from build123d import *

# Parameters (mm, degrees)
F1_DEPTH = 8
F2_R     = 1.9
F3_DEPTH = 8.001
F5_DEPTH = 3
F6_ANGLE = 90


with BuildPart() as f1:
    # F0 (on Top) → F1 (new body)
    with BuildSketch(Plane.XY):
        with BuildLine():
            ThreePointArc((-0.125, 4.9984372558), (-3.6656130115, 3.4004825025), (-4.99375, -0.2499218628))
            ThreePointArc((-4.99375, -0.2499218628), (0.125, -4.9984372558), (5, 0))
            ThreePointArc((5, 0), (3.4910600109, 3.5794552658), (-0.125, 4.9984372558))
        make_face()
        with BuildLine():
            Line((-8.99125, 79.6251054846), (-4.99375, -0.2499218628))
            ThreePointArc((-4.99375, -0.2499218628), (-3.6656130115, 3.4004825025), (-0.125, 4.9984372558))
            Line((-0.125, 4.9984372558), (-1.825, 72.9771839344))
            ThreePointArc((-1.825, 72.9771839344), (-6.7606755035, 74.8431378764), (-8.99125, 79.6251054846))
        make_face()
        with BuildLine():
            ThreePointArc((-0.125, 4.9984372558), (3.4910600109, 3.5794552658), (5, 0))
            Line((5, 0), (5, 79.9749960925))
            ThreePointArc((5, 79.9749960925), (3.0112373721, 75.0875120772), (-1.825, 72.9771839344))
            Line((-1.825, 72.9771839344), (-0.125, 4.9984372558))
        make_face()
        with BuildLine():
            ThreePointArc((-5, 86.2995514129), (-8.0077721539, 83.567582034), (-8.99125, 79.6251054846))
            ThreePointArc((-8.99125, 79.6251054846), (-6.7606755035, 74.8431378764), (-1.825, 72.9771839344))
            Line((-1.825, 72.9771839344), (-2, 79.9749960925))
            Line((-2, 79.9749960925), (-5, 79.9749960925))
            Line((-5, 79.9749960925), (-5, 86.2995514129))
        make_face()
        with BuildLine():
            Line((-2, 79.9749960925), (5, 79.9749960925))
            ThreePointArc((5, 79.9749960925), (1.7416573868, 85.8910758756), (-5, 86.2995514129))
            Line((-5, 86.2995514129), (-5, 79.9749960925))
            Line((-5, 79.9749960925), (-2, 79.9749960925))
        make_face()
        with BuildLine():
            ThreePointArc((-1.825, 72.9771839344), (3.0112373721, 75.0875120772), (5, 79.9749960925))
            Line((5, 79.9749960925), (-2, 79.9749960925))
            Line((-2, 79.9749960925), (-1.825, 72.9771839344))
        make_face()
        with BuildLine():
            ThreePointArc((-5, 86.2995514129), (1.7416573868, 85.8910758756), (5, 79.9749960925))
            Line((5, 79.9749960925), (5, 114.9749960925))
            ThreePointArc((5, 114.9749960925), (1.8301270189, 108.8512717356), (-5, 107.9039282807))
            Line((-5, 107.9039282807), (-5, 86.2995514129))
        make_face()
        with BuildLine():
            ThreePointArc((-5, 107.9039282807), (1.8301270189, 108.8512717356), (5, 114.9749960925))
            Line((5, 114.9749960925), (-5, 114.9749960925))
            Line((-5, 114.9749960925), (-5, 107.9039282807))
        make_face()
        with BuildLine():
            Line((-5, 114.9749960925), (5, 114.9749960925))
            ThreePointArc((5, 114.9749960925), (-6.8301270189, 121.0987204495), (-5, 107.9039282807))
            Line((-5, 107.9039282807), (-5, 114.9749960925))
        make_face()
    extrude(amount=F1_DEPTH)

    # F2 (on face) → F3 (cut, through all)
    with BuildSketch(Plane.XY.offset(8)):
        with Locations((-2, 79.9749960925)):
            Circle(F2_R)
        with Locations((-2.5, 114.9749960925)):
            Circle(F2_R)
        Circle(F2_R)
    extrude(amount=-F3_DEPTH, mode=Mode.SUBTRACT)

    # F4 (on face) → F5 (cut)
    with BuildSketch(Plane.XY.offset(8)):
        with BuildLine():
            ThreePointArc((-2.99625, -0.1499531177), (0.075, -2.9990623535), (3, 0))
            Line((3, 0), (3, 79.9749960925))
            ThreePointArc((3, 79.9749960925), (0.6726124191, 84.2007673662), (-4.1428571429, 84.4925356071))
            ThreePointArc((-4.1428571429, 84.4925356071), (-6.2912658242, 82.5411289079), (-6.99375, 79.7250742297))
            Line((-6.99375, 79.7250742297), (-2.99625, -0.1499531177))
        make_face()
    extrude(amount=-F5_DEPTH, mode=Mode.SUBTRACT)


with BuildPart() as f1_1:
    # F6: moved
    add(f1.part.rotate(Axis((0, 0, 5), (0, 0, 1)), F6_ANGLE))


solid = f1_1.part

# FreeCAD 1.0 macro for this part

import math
import FreeCAD as App
import Part
import Sketcher

V = App.Vector

doc = App.newDocument("Part")
body = doc.addObject("PartDesign::Body", "Body")

# Sketch on XY plane
sketch1 = body.newObject("Sketcher::SketchObject", "Sketch")
sketch1.AttachmentSupport = (doc.getObject("XY_Plane"), [""])
sketch1.MapMode = "FlatFace"
sketch1.addGeometry([
    Part.LineSegment(V(5, 0, 0), V(5, 114.974996, 0)),  # 0
    Part.ArcOfCircle(Part.Circle(V(-2.5, 114.974996, 0), V(0, 0, 1), 7.5), math.radians(0), math.radians(250.528779)),  # 1
    Part.LineSegment(V(-5, 107.903928, 0), V(-5, 86.299551, 0)),  # 2
    Part.ArcOfCircle(Part.Circle(V(-2, 79.974996, 0), V(0, 0, 1), 7), math.radians(115.376934), math.radians(182.865087)),  # 3
    Part.LineSegment(V(-8.99125, 79.625105, 0), V(-4.99375, -0.249922, 0)),  # 4
    Part.ArcOfCircle(Part.Circle(V(0, 0, 0), V(0, 0, 1), 5), math.radians(-177.134913), math.radians(0)),  # 5
], False)
sketch1.addConstraint([
    Sketcher.Constraint("Tangent", 0, 2, 1, 1),
    Sketcher.Constraint("Coincident", 1, 2, 2, 1),
    Sketcher.Constraint("Coincident", 2, 2, 3, 1),
    Sketcher.Constraint("Tangent", 3, 2, 4, 1),
    Sketcher.Constraint("Tangent", 4, 2, 5, 1),
    Sketcher.Constraint("Tangent", 5, 2, 0, 1),
    Sketcher.Constraint("Vertical", 0),
    Sketcher.Constraint("Vertical", 2),
    Sketcher.Constraint("Coincident", 5, 3, -1, 1),
    Sketcher.Constraint("Radius", 3, 7.0),
    Sketcher.Constraint("Radius", 5, 5.0),
    Sketcher.Constraint("Radius", 1, 7.5),
    Sketcher.Constraint("DistanceX", 3, 3, -1, 1, 2.0),
    Sketcher.Constraint("DistanceX", 1, 2, -1, 1, 5.0),
    Sketcher.Constraint("DistanceY", 3, 3, 1, 3, 35.0),
    Sketcher.Constraint("DistanceY", 0, 1, 0, 2, 114.974996),
])
pad1 = body.newObject("PartDesign::Pad", "Pad")
pad1.Profile = sketch1
pad1.Length = 8

# Sketch on XY plane
sketch2 = body.newObject("Sketcher::SketchObject", "Sketch001")
sketch2.AttachmentSupport = (doc.getObject("XY_Plane"), [""])
sketch2.MapMode = "FlatFace"
sketch2.AttachmentOffset = App.Placement(V(0, 0, 8), App.Rotation())
sketch2.addGeometry([
    Part.Circle(V(-2, 79.974996, 0), V(0, 0, 1), 1.9),
    Part.Circle(V(-2.5, 114.974996, 0), V(0, 0, 1), 1.9),
    Part.Circle(V(0, 0, 0), V(0, 0, 1), 1.9),
], False)
sketch2.addConstraint([
    Sketcher.Constraint("Coincident", 2, 3, -1, 1),
    Sketcher.Constraint("Equal", 0, 1),
    Sketcher.Constraint("Equal", 1, 2),
    Sketcher.Constraint("Diameter", 0, 3.8),
    Sketcher.Constraint("DistanceX", 0, 3, -1, 1, 2.0),
    Sketcher.Constraint("DistanceY", 0, 3, 1, 3, 35.0),
    Sketcher.Constraint("DistanceX", 1, 3, -1, 1, 2.5),
    Sketcher.Constraint("DistanceY", -1, 1, 0, 3, 79.974996),
])
pocket1 = body.newObject("PartDesign::Pocket", "Pocket")
pocket1.Profile = sketch2
pocket1.Type = "ThroughAll"

# Sketch on XY plane
sketch3 = body.newObject("Sketcher::SketchObject", "Sketch002")
sketch3.AttachmentSupport = (doc.getObject("XY_Plane"), [""])
sketch3.MapMode = "FlatFace"
sketch3.AttachmentOffset = App.Placement(V(0, 0, 8), App.Rotation())
sketch3.addGeometry([
    Part.ArcOfCircle(Part.Circle(V(0, 0, 0), V(0, 0, 1), 3), math.radians(-177.134913), math.radians(0)),  # 0
    Part.LineSegment(V(3, 0, 0), V(3, 79.974996, 0)),  # 1
    Part.ArcOfCircle(Part.Circle(V(-2, 79.974996, 0), V(0, 0, 1), 5), math.radians(0), math.radians(115.376934)),  # 2
    Part.ArcOfCircle(Part.Circle(V(-2, 79.974996, 0), V(0, 0, 1), 5), math.radians(115.376934), math.radians(182.865087)),  # 3
    Part.LineSegment(V(-6.99375, 79.725074, 0), V(-2.99625, -0.149953, 0)),  # 4
], False)
sketch3.addConstraint([
    Sketcher.Constraint("Tangent", 0, 2, 1, 1),
    Sketcher.Constraint("Tangent", 1, 2, 2, 1),
    Sketcher.Constraint("Tangent", 2, 2, 3, 1),
    Sketcher.Constraint("Tangent", 3, 2, 4, 1),
    Sketcher.Constraint("Tangent", 4, 2, 0, 1),
    Sketcher.Constraint("Vertical", 1),
    Sketcher.Constraint("Coincident", 0, 3, -1, 1),
    Sketcher.Constraint("Equal", 2, 3),
    Sketcher.Constraint("Radius", 0, 3.0),
    Sketcher.Constraint("Radius", 2, 5.0),
    Sketcher.Constraint("DistanceY", 1, 1, 1, 2, 79.974996),
    Sketcher.Constraint("DistanceY", 2, 3, 2, 2, 4.51754),
])
pocket2 = body.newObject("PartDesign::Pocket", "Pocket001")
pocket2.Profile = sketch3
pocket2.Length = 3
body2 = doc.addObject("PartDesign::Body", "Body001")
doc.recompute()

body.Placement = App.Placement(V(0, 0, 0), App.Rotation(V(0, 0, 1), 90))
boolean = body2.newObject("PartDesign::Boolean", "Boolean")
boolean.Type = "Fuse"
boolean.addObjects([body])

doc.recompute()
